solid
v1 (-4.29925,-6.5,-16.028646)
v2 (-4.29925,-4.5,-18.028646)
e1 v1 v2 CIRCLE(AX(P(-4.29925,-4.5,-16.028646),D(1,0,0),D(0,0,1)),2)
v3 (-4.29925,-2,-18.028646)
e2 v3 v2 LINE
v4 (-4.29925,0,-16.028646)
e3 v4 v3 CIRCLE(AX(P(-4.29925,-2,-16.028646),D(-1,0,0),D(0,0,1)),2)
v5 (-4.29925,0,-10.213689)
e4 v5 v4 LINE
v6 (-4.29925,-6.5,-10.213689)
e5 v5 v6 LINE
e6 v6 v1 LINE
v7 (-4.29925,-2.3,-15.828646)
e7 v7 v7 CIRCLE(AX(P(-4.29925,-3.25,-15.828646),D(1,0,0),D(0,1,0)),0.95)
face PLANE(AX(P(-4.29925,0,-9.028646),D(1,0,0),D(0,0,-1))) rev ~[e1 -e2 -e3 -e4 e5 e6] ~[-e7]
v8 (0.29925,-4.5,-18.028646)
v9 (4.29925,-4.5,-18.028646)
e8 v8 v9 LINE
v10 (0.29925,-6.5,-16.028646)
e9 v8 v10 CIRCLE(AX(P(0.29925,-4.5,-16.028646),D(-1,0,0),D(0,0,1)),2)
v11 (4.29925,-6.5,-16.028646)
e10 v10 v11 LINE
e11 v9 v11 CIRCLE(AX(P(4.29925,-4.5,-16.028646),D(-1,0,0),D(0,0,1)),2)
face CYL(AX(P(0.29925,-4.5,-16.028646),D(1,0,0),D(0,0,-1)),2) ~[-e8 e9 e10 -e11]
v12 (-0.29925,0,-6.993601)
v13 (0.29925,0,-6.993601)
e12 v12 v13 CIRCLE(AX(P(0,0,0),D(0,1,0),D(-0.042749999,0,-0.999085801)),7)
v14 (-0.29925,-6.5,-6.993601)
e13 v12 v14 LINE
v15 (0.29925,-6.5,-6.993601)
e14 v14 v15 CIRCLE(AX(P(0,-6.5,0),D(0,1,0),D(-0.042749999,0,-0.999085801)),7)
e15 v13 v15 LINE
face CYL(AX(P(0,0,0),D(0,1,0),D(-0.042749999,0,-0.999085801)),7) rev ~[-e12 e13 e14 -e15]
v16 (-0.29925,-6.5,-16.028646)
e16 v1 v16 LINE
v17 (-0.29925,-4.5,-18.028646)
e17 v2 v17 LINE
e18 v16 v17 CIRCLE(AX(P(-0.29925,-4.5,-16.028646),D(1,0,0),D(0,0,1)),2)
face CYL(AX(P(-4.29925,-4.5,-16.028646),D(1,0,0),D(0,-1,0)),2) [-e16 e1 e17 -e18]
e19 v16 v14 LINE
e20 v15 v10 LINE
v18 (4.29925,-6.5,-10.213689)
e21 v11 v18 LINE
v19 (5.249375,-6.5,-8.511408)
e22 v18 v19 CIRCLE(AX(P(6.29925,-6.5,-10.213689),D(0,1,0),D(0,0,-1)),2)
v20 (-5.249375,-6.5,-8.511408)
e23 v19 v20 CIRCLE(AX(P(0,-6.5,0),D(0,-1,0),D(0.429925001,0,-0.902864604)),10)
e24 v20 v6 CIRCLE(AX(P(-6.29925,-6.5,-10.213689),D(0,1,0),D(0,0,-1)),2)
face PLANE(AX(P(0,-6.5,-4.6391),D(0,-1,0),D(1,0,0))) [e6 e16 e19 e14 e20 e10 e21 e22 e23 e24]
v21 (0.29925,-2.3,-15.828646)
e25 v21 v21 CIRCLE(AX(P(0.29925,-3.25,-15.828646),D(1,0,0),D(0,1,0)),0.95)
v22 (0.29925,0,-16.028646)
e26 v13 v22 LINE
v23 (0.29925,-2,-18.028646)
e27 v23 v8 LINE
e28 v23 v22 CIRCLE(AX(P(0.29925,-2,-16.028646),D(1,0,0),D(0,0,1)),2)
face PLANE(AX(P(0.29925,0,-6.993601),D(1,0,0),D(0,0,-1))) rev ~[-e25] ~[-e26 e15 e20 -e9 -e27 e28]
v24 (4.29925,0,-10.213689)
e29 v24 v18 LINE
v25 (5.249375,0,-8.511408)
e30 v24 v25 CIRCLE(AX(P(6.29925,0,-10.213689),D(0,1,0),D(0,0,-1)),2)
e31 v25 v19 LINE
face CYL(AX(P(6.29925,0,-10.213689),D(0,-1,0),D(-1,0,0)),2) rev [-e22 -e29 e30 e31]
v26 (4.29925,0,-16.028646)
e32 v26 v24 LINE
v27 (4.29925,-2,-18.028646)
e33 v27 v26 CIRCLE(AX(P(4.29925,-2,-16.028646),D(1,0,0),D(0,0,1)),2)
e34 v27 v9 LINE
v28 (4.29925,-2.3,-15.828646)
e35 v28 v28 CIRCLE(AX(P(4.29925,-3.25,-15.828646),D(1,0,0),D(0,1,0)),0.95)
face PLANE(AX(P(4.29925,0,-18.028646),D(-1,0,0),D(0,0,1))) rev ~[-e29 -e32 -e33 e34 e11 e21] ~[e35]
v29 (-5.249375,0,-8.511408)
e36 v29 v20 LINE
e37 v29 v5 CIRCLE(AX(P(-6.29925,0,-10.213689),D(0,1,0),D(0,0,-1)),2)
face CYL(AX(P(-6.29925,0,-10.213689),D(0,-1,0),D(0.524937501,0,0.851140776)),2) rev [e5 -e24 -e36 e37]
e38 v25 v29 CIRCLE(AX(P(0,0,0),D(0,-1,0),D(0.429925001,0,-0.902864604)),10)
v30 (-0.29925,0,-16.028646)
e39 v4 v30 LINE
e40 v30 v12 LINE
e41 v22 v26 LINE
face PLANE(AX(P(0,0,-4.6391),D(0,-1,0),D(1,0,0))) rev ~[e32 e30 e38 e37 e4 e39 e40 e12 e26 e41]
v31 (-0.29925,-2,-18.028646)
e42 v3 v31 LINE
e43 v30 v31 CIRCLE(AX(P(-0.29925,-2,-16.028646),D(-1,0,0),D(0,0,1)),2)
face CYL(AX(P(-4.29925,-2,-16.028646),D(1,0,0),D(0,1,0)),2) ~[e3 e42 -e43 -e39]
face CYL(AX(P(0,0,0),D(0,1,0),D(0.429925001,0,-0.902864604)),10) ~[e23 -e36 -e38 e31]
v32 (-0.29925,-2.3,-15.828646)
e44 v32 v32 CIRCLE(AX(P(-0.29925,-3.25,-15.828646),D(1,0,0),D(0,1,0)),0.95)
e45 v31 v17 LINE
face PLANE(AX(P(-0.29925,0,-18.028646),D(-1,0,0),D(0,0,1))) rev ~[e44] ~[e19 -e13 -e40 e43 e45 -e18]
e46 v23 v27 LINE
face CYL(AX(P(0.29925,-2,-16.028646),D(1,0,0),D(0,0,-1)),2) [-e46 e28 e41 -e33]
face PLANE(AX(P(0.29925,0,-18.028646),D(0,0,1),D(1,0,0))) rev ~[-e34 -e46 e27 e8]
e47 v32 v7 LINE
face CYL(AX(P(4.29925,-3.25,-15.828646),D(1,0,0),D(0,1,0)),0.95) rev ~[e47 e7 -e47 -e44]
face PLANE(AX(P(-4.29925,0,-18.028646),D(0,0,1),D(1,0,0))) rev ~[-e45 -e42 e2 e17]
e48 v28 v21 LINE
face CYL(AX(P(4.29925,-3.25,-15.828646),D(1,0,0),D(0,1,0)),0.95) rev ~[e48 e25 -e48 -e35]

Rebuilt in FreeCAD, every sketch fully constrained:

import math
import FreeCAD as App
import Part
import Sketcher

V = App.Vector
Q = App.Units.Quantity


def edges_at(feature, points):
    """Names of the edges that pass closest to the given points."""
    edges = feature.Shape.Edges
    near = lambda p: min(range(len(edges)), key=lambda i: edges[i].distToShape(Part.Vertex(*p))[0])
    return sorted({f"Edge{near(p) + 1}" for p in points})

doc = App.newDocument("Part")
body = doc.addObject("PartDesign::Body", "Body")

# Sketch on XZ plane
sketch1 = body.newObject("Sketcher::SketchObject", "Sketch")
sketch1.AttachmentSupport = (doc.getObject("XZ_Plane"), [""])
sketch1.MapMode = "FlatFace"
sketch1.addGeometry([
    Part.LineSegment(V(4.29925, -18.028646, 0), V(4.29925, -9.028646, 0)),  # 0
    Part.ArcOfCircle(Part.Circle(V(0, 0, 0), V(0, 0, 1), 10), math.radians(-64.537199), math.radians(244.537199)),  # 1
    Part.LineSegment(V(-4.29925, -9.028646, 0), V(-4.29925, -18.028646, 0)),  # 2
    Part.LineSegment(V(-4.29925, -18.028646, 0), V(-0.29925, -18.028646, 0)),  # 3
    Part.LineSegment(V(-0.29925, -18.028646, 0), V(-0.29925, -6.993601, 0)),  # 4
    Part.ArcOfCircle(Part.Circle(V(0, 0, 0), V(0, 0, 1), 7), math.radians(-87.549859), math.radians(267.549859)),  # 5
    Part.LineSegment(V(0.29925, -6.993601, 0), V(0.29925, -18.028646, 0)),  # 6
    Part.LineSegment(V(0.29925, -18.028646, 0), V(4.29925, -18.028646, 0)),  # 7
], False)
sketch1.addConstraint([
    Sketcher.Constraint("Coincident", 0, 2, 1, 1),
    Sketcher.Constraint("Coincident", 1, 2, 2, 1),
    Sketcher.Constraint("Coincident", 2, 2, 3, 1),
    Sketcher.Constraint("Coincident", 3, 2, 4, 1),
    Sketcher.Constraint("Coincident", 4, 2, 5, 2),
    Sketcher.Constraint("Coincident", 5, 1, 6, 1),
    Sketcher.Constraint("Coincident", 6, 2, 7, 1),
    Sketcher.Constraint("Coincident", 7, 2, 0, 1),
    Sketcher.Constraint("Vertical", 0),
    Sketcher.Constraint("Vertical", 2),
    Sketcher.Constraint("Horizontal", 3),
    Sketcher.Constraint("Vertical", 4),
    Sketcher.Constraint("Vertical", 6),
    Sketcher.Constraint("Horizontal", 7),
    Sketcher.Constraint("Coincident", 1, 3, -1, 1),
    Sketcher.Constraint("Coincident", 5, 3, -1, 1),
    Sketcher.Constraint("Symmetric", 3, 2, 6, 2, -2),
    Sketcher.Constraint("Horizontal", 0, 2, 1, 2),
    Sketcher.Constraint("Radius", 1, Q("10 mm")),
    Sketcher.Constraint("Radius", 5, Q("7 mm")),
    Sketcher.Constraint("DistanceX", 3, 1, 3, 2, Q("4 mm")),
    Sketcher.Constraint("DistanceY", 0, 1, 0, 2, Q("9 mm")),
    Sketcher.Constraint("DistanceY", 4, 2, -1, 1, Q("6.993601 mm")),
])
pad1 = body.newObject("PartDesign::Pad", "Pad")
pad1.Profile = sketch1
pad1.Length = 6.5

# Sketch on YZ plane
sketch2 = body.newObject("Sketcher::SketchObject", "Sketch001")
sketch2.AttachmentSupport = (doc.getObject("YZ_Plane"), [""])
sketch2.MapMode = "FlatFace"
sketch2.AttachmentOffset = App.Placement(V(0, 0, 4.29925), App.Rotation())
sketch2.addGeometry(Part.Circle(V(-3.25, -15.828646, 0), V(0, 0, 1), 0.95), False)
sketch2.addConstraint([
    Sketcher.Constraint("Diameter", 0, Q("1.9 mm")),
    Sketcher.Constraint("DistanceX", 0, 3, -1, 1, Q("3.25 mm")),
    Sketcher.Constraint("DistanceY", 0, 3, -1, 1, Q("15.828646 mm")),
])
pocket1 = body.newObject("PartDesign::Pocket", "Pocket")
pocket1.Profile = sketch2
pocket1.Length = 25
doc.recompute()

fillet = body.newObject("PartDesign::Fillet", "Fillet")
fillet.Base = (pocket1, edges_at(pocket1, [
    (2.299, 0, -18.029),
    (-2.299, 0, -18.029),
    (2.299, -6.5, -18.029),
    (-2.299, -6.5, -18.029),
]))
fillet.Radius = 2
doc.recompute()

fillet2 = body.newObject("PartDesign::Fillet", "Fillet001")
fillet2.Base = (fillet, edges_at(fillet, [(4.299, -3.25, -9.029), (-4.299, -3.25, -9.029)]))
fillet2.Radius = 2

doc.recompute()
